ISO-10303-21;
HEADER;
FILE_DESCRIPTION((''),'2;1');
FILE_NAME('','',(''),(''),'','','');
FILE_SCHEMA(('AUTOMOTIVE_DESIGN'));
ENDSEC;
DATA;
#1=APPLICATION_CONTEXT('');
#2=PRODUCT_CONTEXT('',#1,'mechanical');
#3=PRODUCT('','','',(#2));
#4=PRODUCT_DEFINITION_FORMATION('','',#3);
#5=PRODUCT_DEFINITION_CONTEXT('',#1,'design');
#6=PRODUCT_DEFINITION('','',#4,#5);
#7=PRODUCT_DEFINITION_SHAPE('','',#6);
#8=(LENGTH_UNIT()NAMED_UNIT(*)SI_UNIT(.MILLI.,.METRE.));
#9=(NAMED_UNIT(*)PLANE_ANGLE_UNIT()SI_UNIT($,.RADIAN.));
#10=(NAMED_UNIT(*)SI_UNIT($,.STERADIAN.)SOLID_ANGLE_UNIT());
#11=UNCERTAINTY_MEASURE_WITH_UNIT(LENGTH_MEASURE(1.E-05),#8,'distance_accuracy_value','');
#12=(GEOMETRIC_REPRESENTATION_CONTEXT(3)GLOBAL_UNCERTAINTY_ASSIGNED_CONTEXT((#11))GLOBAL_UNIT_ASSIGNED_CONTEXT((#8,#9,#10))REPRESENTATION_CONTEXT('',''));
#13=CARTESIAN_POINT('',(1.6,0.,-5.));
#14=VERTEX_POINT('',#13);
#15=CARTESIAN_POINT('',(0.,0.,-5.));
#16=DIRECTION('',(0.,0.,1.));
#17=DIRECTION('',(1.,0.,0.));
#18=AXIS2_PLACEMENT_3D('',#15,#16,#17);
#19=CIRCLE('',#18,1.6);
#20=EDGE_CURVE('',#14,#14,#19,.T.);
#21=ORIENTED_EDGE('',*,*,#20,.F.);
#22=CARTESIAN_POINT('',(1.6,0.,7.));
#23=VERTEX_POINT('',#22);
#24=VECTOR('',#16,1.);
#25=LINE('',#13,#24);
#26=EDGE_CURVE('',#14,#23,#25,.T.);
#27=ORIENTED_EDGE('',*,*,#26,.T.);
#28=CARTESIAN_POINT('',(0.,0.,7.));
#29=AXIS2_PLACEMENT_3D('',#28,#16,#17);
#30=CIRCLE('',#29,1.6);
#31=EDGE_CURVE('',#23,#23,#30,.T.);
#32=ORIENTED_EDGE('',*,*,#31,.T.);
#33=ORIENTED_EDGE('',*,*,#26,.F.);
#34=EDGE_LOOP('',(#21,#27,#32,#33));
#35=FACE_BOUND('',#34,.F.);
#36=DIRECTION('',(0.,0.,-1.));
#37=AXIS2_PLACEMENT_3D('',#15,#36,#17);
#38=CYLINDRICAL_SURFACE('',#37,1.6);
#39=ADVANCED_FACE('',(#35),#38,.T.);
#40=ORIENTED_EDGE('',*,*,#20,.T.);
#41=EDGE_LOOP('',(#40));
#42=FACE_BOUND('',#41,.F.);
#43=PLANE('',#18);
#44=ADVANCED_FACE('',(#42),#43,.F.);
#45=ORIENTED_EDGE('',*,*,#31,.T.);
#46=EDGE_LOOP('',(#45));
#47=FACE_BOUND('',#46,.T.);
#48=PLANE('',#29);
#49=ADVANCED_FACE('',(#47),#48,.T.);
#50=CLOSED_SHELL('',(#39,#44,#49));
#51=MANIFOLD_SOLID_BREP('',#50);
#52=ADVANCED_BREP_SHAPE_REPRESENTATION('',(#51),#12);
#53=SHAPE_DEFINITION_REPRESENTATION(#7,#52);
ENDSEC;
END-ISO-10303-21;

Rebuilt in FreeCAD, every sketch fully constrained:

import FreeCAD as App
import Part
import Sketcher
from FreeCAD import Vector

doc = App.newDocument("Part")
body = doc.addObject("PartDesign::Body", "Body")

# Sketch on XY plane
sketch1 = doc.addObject("Sketcher::SketchObject", "Sketch")
body.addObject(sketch1)
sketch1.AttachmentSupport = (doc.XY_Plane, [""])
sketch1.MapMode = "FlatFace"
sketch1.AttachmentOffset = App.Placement(Vector(0, 0, -5), App.Rotation())
sketch1.addGeometry(Part.Circle(Vector(0, 0, 0), Vector(0, 0, 1), 1.6), False)
sketch1.addConstraint([
    Sketcher.Constraint("Coincident", 0, 3, -1, 1),
    Sketcher.Constraint("Diameter", 0, 3.2),
])
pad1 = doc.addObject("PartDesign::Pad", "Pad")
body.addObject(pad1)
pad1.Profile = sketch1
pad1.Length = 12

doc.recompute()
